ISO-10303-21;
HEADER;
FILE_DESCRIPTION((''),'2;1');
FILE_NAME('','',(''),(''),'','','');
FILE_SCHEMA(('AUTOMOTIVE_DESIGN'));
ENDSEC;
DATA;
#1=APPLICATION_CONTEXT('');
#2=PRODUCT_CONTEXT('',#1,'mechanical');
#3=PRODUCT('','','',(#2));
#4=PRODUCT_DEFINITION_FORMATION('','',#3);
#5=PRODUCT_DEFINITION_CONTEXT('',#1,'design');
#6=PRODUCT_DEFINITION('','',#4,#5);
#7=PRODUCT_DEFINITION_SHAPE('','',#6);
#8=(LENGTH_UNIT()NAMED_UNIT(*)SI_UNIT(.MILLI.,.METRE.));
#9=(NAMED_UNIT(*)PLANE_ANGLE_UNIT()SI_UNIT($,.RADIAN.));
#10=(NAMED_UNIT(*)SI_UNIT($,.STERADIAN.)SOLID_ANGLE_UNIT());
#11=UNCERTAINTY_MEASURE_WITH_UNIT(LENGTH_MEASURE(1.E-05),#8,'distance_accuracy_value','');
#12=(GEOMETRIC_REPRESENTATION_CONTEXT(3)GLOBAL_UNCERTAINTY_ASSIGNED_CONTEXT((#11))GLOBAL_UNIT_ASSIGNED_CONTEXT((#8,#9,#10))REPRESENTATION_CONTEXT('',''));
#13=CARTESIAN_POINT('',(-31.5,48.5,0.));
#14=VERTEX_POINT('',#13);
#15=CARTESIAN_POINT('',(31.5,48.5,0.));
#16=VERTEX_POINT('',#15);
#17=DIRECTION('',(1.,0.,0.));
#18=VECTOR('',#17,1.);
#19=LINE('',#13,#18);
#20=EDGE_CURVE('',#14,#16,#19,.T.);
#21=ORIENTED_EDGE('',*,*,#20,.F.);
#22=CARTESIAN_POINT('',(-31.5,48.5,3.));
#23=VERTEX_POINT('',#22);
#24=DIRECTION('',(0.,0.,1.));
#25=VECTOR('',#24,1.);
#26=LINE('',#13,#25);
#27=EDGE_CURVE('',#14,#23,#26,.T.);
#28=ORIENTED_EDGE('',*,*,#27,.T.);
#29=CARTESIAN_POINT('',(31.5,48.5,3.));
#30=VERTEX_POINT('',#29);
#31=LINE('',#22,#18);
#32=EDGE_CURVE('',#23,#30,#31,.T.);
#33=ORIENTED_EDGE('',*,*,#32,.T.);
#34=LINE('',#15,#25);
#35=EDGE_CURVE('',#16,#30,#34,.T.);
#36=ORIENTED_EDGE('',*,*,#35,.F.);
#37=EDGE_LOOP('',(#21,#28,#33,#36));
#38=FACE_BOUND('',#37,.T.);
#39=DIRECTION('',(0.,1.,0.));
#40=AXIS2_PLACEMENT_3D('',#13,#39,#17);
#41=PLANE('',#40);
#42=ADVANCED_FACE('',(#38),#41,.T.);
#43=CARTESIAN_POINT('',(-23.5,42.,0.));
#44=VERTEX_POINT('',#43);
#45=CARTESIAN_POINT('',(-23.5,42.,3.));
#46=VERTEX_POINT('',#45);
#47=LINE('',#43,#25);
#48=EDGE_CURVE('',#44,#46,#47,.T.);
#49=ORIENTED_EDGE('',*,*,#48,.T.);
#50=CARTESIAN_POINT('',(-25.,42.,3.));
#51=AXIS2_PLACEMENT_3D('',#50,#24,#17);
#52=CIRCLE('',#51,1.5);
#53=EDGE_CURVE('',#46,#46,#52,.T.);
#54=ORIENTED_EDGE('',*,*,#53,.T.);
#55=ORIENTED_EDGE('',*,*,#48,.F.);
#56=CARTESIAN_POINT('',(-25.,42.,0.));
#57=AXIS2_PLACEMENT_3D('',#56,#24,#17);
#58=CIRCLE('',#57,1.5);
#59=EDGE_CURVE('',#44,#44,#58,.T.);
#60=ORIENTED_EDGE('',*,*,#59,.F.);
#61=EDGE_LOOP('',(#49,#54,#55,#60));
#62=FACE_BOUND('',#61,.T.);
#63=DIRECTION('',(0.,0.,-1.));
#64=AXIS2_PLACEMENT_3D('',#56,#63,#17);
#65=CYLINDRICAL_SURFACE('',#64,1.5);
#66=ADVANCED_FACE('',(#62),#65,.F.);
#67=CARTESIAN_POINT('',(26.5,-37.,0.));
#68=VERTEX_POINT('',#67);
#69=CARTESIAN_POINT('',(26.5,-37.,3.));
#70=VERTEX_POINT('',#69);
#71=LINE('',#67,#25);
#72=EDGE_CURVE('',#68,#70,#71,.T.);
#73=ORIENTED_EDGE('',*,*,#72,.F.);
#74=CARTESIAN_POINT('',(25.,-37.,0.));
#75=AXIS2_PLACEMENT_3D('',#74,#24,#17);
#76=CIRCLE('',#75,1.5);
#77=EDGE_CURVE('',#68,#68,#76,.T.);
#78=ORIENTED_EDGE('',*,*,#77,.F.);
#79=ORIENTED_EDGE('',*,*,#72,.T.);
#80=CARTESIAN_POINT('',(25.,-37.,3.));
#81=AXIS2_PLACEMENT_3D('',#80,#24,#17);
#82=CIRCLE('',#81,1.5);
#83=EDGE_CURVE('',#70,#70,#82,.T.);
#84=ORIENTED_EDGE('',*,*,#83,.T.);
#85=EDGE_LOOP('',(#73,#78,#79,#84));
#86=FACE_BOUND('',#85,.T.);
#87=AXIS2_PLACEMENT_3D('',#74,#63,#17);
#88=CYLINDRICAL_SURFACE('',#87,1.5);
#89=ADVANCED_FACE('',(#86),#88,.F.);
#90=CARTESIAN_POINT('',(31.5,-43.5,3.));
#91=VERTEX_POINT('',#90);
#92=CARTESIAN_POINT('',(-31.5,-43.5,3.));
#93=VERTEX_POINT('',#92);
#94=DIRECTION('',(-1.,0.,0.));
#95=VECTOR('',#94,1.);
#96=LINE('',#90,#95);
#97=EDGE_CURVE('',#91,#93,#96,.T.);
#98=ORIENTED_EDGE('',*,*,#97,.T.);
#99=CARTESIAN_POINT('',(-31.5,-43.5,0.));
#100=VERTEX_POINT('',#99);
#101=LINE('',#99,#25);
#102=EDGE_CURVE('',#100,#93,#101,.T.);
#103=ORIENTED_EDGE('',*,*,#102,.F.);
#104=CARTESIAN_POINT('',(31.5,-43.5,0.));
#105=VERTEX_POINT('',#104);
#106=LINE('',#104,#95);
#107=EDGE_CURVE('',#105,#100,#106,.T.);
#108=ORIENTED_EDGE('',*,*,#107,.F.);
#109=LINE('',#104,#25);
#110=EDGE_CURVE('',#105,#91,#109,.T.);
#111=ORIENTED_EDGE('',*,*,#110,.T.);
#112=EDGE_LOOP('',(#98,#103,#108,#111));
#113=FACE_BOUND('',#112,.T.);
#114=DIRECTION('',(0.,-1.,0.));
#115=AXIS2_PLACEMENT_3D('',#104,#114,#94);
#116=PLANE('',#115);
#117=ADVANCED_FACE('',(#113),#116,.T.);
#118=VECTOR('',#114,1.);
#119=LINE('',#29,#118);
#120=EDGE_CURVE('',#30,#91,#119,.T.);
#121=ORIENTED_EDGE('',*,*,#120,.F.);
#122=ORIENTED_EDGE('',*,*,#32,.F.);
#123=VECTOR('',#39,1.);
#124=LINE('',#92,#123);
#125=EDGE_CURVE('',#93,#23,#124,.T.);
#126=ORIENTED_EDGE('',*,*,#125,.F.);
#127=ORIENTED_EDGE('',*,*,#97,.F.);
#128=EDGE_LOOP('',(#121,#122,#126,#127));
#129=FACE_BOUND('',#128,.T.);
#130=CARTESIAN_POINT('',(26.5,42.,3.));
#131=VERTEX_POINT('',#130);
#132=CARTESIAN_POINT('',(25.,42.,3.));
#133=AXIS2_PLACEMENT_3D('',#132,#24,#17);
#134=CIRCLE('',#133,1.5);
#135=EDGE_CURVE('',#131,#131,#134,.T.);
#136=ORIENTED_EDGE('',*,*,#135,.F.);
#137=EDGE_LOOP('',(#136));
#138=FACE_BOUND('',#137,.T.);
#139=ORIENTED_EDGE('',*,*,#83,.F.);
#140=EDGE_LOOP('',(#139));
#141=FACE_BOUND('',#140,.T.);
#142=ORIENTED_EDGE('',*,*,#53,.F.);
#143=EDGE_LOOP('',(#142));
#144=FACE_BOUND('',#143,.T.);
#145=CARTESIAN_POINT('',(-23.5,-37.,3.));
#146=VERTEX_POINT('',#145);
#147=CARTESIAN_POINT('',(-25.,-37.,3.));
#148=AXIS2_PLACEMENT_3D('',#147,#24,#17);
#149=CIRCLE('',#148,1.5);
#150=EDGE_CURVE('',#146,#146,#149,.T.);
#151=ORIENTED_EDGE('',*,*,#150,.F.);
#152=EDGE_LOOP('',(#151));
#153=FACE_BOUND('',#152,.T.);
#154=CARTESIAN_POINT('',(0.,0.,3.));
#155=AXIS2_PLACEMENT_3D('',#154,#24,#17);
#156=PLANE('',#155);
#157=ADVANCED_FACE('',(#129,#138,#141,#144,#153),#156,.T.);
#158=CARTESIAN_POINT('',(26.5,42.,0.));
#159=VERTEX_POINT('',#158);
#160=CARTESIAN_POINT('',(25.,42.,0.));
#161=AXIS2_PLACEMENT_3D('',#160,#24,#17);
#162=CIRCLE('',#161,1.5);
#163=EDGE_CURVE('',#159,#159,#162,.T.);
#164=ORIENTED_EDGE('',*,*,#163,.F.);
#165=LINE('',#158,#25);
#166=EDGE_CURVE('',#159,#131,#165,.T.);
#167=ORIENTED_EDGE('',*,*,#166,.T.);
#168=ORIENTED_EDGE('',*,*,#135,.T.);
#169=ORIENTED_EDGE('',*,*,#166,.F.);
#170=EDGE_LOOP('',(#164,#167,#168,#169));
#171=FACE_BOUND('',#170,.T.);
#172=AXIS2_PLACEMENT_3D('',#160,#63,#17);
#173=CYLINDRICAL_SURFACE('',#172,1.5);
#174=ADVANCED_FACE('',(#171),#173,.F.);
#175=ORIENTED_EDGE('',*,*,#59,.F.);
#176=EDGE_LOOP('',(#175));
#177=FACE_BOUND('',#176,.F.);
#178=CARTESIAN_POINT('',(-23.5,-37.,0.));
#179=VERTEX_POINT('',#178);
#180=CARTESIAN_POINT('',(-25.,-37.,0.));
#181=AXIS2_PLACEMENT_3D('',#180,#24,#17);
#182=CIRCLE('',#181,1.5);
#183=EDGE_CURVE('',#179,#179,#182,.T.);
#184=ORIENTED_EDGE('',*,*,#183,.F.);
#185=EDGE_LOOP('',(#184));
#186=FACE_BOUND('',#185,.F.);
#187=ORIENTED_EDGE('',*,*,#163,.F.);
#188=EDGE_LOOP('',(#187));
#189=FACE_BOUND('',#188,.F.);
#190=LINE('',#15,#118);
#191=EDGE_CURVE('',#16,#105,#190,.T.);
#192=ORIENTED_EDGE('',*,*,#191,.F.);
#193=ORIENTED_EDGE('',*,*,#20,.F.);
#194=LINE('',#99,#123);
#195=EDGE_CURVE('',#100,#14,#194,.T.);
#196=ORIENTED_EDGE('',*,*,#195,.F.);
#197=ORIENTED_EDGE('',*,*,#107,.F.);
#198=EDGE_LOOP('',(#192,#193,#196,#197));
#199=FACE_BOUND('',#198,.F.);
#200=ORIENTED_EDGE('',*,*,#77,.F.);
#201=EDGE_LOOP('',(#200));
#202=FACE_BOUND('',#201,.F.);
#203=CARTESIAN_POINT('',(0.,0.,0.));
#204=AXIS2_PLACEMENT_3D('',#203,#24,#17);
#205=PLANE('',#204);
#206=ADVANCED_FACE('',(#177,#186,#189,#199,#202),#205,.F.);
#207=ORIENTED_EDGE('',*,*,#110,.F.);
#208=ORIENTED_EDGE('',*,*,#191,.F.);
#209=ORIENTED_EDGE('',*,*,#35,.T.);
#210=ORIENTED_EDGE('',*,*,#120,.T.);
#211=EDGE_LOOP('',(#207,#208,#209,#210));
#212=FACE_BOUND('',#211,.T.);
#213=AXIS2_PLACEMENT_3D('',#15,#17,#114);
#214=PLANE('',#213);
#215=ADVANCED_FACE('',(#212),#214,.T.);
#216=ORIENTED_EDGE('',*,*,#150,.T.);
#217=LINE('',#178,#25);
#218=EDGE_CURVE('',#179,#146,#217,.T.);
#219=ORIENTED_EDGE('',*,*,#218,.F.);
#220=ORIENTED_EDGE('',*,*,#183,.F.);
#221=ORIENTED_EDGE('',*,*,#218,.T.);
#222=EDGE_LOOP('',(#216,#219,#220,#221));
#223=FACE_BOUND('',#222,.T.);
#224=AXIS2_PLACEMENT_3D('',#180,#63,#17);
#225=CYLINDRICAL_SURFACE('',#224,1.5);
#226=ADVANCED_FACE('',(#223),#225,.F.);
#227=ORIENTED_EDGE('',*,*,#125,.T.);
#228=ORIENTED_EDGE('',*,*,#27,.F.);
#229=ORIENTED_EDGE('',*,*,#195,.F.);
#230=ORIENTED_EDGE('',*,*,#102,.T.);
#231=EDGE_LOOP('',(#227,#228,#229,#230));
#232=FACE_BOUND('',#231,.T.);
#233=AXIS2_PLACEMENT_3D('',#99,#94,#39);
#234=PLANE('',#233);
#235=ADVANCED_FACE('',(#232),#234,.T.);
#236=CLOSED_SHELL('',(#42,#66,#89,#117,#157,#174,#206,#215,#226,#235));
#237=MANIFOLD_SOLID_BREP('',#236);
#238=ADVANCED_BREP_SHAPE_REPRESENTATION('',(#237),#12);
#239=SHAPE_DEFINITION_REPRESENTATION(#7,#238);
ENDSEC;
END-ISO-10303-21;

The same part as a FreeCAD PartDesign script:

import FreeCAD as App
import Part
import Sketcher

V = App.Vector
Q = App.Units.Quantity

doc = App.newDocument("Part")
body = doc.addObject("PartDesign::Body", "Body")

sketch1 = body.newObject("Sketcher::SketchObject", "Sketch")
sketch1.AttachmentSupport = (doc.getObject("XY_Plane"), [""])
sketch1.MapMode = "FlatFace"
sketch1.addGeometry([
    Part.LineSegment(V(31.5, -43.5, 0), V(31.5, 48.5, 0)),
    Part.LineSegment(V(31.5, 48.5, 0), V(-31.5, 48.5, 0)),
    Part.LineSegment(V(-31.5, 48.5, 0), V(-31.5, -43.5, 0)),
    Part.LineSegment(V(-31.5, -43.5, 0), V(31.5, -43.5, 0)),
    Part.Circle(V(-25, -37, 0), V(0, 0, 1), 1.5),
    Part.Circle(V(25, -37, 0), V(0, 0, 1), 1.5),
    Part.Circle(V(-25, 42, 0), V(0, 0, 1), 1.5),
    Part.Circle(V(25, 42, 0), V(0, 0, 1), 1.5),
], False)
sketch1.addConstraint([
    Sketcher.Constraint("Coincident", 0, 2, 1, 1),
    Sketcher.Constraint("Coincident", 1, 2, 2, 1),
    Sketcher.Constraint("Coincident", 2, 2, 3, 1),
    Sketcher.Constraint("Coincident", 3, 2, 0, 1),
    Sketcher.Constraint("Vertical", 0),
    Sketcher.Constraint("Horizontal", 1),
    Sketcher.Constraint("Vertical", 2),
    Sketcher.Constraint("Horizontal", 3),
    Sketcher.Constraint("Equal", 4, 5),
    Sketcher.Constraint("Equal", 5, 6),
    Sketcher.Constraint("Equal", 6, 7),
    Sketcher.Constraint("Symmetric", 4, 3, 5, 3, -2),
    Sketcher.Constraint("Symmetric", 6, 3, 7, 3, -2),
    Sketcher.Constraint("Vertical", 4, 3, 6, 3),
    Sketcher.Constraint("Diameter", 4, Q("3 mm")),
    Sketcher.Constraint("DistanceX", 1, 2, 1, 1, Q("63 mm")),
    Sketcher.Constraint("DistanceY", 0, 1, 0, 2, Q("92 mm")),
    Sketcher.Constraint("DistanceX", 4, 3, -1, 1, Q("25 mm")),
    Sketcher.Constraint("DistanceY", 4, 3, -1, 1, Q("37 mm")),
    Sketcher.Constraint("DistanceY", -1, 1, 6, 3, Q("42 mm")),
    Sketcher.Constraint("DistanceX", -1, 1, 0, 2, Q("31.5 mm")),
    Sketcher.Constraint("DistanceY", -1, 1, 0, 2, Q("48.5 mm")),
])
pad1 = body.newObject("PartDesign::Pad", "Pad")
pad1.Profile = sketch1
pad1.Length = 3

doc.recompute()
